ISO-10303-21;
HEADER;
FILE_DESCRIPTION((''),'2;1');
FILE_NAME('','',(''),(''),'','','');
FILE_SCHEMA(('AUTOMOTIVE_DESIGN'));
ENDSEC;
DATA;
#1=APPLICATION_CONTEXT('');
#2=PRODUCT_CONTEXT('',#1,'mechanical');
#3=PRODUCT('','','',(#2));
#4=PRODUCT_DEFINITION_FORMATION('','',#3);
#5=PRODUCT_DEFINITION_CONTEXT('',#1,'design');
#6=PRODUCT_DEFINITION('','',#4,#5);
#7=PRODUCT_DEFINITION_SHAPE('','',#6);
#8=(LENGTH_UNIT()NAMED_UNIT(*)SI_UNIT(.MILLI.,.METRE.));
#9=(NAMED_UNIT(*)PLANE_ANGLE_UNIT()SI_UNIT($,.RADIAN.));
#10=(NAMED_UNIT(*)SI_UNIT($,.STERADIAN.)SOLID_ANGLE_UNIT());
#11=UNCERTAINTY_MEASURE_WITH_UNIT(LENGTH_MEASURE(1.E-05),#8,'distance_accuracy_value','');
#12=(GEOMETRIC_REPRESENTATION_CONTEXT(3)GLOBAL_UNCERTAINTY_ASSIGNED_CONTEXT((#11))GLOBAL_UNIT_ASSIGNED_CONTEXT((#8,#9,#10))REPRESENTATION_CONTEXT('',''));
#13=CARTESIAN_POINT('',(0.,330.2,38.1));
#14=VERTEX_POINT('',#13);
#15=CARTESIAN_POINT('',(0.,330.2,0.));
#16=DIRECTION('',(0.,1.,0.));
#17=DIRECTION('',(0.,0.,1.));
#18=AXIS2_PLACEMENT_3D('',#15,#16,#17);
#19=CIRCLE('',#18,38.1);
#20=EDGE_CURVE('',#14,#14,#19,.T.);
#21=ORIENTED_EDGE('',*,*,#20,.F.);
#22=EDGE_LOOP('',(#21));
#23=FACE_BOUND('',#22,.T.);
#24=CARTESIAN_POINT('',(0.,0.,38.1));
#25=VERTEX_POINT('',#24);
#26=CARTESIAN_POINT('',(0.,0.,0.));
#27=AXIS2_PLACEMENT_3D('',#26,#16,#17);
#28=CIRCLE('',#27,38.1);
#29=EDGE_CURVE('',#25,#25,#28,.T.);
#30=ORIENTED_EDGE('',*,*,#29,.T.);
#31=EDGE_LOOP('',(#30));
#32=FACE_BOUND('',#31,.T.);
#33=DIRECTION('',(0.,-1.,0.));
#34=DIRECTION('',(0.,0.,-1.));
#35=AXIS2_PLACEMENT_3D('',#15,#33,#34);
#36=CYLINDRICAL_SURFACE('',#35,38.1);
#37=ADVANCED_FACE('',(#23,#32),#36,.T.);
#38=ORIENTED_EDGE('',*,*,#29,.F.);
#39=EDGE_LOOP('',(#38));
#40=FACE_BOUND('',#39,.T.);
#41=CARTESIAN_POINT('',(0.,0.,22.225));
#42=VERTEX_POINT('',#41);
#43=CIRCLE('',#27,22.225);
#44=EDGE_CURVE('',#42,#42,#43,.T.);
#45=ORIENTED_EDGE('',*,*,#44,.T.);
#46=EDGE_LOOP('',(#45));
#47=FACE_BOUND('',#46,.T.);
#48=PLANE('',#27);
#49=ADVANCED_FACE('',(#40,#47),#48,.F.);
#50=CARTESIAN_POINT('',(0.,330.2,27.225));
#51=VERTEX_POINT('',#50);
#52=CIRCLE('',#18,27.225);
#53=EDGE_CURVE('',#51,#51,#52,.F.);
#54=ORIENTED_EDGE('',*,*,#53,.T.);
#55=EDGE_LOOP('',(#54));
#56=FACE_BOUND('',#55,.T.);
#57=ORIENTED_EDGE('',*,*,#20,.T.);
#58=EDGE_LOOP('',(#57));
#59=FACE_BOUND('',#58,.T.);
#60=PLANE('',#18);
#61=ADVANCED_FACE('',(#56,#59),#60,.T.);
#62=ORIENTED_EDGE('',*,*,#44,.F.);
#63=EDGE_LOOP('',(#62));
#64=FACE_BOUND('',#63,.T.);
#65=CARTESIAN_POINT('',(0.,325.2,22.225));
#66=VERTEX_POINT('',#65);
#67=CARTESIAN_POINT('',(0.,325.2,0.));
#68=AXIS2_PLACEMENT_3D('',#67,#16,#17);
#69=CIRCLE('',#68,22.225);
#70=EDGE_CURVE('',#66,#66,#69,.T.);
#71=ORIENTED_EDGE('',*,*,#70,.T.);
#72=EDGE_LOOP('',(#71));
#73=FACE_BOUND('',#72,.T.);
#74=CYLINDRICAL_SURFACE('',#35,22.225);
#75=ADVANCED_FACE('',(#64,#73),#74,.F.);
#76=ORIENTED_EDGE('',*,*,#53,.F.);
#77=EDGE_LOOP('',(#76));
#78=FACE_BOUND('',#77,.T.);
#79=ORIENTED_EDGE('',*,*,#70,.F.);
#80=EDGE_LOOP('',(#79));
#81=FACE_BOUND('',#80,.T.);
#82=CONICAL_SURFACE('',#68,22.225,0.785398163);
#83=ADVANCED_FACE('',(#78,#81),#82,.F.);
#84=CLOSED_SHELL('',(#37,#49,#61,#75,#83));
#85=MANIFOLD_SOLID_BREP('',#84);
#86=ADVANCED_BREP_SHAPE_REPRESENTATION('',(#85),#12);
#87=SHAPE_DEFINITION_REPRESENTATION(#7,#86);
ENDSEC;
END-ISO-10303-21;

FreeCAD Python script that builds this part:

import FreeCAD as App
import Part
import Sketcher

V = App.Vector
Q = App.Units.Quantity


def edges_at(feature, points):
    """Names of the edges that pass closest to the given points."""
    edges = feature.Shape.Edges
    near = lambda p: min(range(len(edges)), key=lambda i: edges[i].distToShape(Part.Vertex(*p))[0])
    return sorted({f"Edge{near(p) + 1}" for p in points})

doc = App.newDocument("Part")
params = doc.addObject("Spreadsheet::Sheet", "Params")
for row, (alias, value) in enumerate([
    ("sketch1_diameter", "3 in"),
    ("sketch1_diameter2", "1.75 in"),
    ("pad1_length", "13 in"),
    ("chamfer_size", "5 mm"),
], start=1):
    params.set(f"A{row}", alias)
    params.set(f"B{row}", "=" + value)
    params.setAlias(f"B{row}", alias)

body = doc.addObject("PartDesign::Body", "Body")

# Sketch on XZ plane
sketch1 = body.newObject("Sketcher::SketchObject", "Sketch")
sketch1.AttachmentSupport = (doc.getObject("XZ_Plane"), [""])
sketch1.MapMode = "FlatFace"
sketch1.addGeometry([
    Part.Circle(V(0, 0, 0), V(0, 0, 1), 38.1),
    Part.Circle(V(0, 0, 0), V(0, 0, 1), 22.225),
], False)
sketch1.addConstraint([
    Sketcher.Constraint("Coincident", 0, 3, -1, 1),
    Sketcher.Constraint("Coincident", 1, 3, -1, 1),
    Sketcher.Constraint("Diameter", 0, Q("3 in")),
    Sketcher.Constraint("Diameter", 1, Q("1.75 in")),
])
sketch1.setExpression("Constraints[2]", "Params.sketch1_diameter")
sketch1.setExpression("Constraints[3]", "Params.sketch1_diameter2")
pad1 = body.newObject("PartDesign::Pad", "Pad")
pad1.Profile = sketch1
pad1.setExpression("Length", "Params.pad1_length")
pad1.Reversed = True
doc.recompute()

chamfer = body.newObject("PartDesign::Chamfer", "Chamfer")
chamfer.Base = (pad1, edges_at(pad1, [(-22.225, 330.2, 0)]))
chamfer.setExpression("Size", "Params.chamfer_size")

doc.recompute()
